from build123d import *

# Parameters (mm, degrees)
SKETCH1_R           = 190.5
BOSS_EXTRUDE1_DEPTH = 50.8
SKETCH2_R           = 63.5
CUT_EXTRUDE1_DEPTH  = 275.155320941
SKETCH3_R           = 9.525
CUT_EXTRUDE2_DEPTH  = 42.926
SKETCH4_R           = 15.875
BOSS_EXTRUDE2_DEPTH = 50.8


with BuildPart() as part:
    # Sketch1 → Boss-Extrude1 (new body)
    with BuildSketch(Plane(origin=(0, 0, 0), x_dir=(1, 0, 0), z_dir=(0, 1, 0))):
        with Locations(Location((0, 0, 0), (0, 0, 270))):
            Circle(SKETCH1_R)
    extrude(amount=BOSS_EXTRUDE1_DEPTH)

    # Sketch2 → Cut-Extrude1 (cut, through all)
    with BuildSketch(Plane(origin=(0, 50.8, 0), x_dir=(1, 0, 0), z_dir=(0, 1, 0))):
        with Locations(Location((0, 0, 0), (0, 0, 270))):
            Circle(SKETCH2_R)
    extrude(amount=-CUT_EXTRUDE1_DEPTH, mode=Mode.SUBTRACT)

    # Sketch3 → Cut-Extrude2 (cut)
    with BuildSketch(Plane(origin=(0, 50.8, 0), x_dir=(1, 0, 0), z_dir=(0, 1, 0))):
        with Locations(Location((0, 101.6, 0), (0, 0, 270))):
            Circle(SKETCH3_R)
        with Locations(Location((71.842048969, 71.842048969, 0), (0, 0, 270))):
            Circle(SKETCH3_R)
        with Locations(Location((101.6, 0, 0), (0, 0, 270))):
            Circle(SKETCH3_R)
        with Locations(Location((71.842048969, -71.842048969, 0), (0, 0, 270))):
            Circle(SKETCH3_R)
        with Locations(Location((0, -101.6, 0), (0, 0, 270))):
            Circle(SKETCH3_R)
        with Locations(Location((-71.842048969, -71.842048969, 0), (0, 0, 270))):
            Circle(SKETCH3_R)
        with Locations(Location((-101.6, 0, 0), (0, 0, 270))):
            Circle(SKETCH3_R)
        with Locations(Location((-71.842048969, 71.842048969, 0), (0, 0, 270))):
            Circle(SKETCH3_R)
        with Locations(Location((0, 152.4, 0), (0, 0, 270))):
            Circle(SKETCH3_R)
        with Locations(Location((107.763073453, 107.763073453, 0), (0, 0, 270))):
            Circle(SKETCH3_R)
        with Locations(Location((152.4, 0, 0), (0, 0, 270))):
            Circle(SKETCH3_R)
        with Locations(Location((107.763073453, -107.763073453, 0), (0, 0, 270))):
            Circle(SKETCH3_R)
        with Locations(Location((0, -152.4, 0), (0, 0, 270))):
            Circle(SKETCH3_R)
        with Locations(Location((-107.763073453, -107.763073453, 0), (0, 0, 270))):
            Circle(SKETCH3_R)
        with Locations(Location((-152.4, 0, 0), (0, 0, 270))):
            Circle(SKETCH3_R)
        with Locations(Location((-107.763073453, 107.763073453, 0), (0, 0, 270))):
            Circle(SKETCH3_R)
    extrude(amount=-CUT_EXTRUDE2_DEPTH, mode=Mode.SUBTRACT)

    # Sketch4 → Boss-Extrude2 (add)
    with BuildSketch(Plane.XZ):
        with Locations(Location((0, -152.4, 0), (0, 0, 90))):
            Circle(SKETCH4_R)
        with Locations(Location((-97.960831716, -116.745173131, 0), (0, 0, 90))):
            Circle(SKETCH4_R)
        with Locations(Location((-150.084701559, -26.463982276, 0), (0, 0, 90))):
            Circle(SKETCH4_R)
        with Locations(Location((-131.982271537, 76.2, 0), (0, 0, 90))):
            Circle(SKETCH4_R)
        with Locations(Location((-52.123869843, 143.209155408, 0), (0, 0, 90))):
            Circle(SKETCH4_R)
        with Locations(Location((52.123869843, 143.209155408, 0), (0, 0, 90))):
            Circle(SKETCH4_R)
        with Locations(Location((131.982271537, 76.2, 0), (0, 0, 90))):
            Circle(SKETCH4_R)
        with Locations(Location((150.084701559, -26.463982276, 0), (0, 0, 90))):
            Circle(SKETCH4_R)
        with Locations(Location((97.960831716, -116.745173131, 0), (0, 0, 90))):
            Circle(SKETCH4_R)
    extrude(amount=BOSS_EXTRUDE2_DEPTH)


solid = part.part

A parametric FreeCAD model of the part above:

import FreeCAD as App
import Part
import Sketcher
from FreeCAD import Vector
Q = App.Units.Quantity

doc = App.newDocument("Part")
body = doc.addObject("PartDesign::Body", "Body")

sketch1 = body.newObject("Sketcher::SketchObject", "Sketch")
sketch1.AttachmentSupport = (doc.getObject("XZ_Plane"), [""])
sketch1.MapMode = "FlatFace"
sketch1.addGeometry(Part.Circle(Vector(0, 0, 0), Vector(0, 0, 1), 190), False)
sketch1.addConstraint([
    Sketcher.Constraint("Coincident", 0, 3, -1, 1),
    Sketcher.Constraint("Diameter", 0, Q("15 in")),
])
pad1 = body.newObject("PartDesign::Pad", "Pad")
pad1.Profile = sketch1
pad1.Length = Q("2 in")
pad1.Reversed = True

sketch2 = body.newObject("Sketcher::SketchObject", "Sketch001")
sketch2.AttachmentSupport = (doc.getObject("XZ_Plane"), [""])
sketch2.MapMode = "FlatFace"
sketch2.AttachmentOffset = App.Placement(Vector(0, 0, -2 * 25.4), App.Rotation())
sketch2.addGeometry(Part.Circle(Vector(0, 0, 0), Vector(0, 0, 1), 64), False)
sketch2.addConstraint([
    Sketcher.Constraint("Coincident", 0, 3, -1, 1),
    Sketcher.Constraint("Diameter", 0, Q("5 in")),
])
pocket1 = body.newObject("PartDesign::Pocket", "Pocket")
pocket1.Profile = sketch2
pocket1.Type = "ThroughAll"
pocket1.Reversed = True

sketch3 = body.newObject("Sketcher::SketchObject", "Sketch002")
sketch3.AttachmentSupport = (doc.getObject("XZ_Plane"), [""])
sketch3.MapMode = "FlatFace"
sketch3.AttachmentOffset = App.Placement(Vector(0, 0, -2 * 25.4), App.Rotation())
sketch3.addGeometry([
    Part.Circle(Vector(0, -102, 0), Vector(0, 0, 1), 10),
    Part.Circle(Vector(72, -72, 0), Vector(0, 0, 1), 10),
    Part.Circle(Vector(102, 0, 0), Vector(0, 0, 1), 10),
    Part.Circle(Vector(72, 72, 0), Vector(0, 0, 1), 10),
    Part.Circle(Vector(0, 102, 0), Vector(0, 0, 1), 10),
    Part.Circle(Vector(-72, 72, 0), Vector(0, 0, 1), 10),
    Part.Circle(Vector(-102, 0, 0), Vector(0, 0, 1), 10),
    Part.Circle(Vector(-72, -72, 0), Vector(0, 0, 1), 10),
    Part.Circle(Vector(0, -152, 0), Vector(0, 0, 1), 10),
    Part.Circle(Vector(108, -108, 0), Vector(0, 0, 1), 10),
    Part.Circle(Vector(152, 0, 0), Vector(0, 0, 1), 10),
    Part.Circle(Vector(108, 108, 0), Vector(0, 0, 1), 10),
    Part.Circle(Vector(0, 152, 0), Vector(0, 0, 1), 10),
    Part.Circle(Vector(-108, 108, 0), Vector(0, 0, 1), 10),
    Part.Circle(Vector(-152, 0, 0), Vector(0, 0, 1), 10),
    Part.Circle(Vector(-108, -108, 0), Vector(0, 0, 1), 10),
], False)
sketch3.addConstraint([
    Sketcher.Constraint("Equal", 0, 1),
    Sketcher.Constraint("Equal", 1, 2),
    Sketcher.Constraint("Equal", 2, 3),
    Sketcher.Constraint("Equal", 3, 4),
    Sketcher.Constraint("Equal", 4, 5),
    Sketcher.Constraint("Equal", 5, 6),
    Sketcher.Constraint("Equal", 6, 7),
    Sketcher.Constraint("Equal", 7, 8),
    Sketcher.Constraint("Equal", 8, 9),
    Sketcher.Constraint("Equal", 9, 10),
    Sketcher.Constraint("Equal", 10, 11),
    Sketcher.Constraint("Equal", 11, 12),
    Sketcher.Constraint("Equal", 12, 13),
    Sketcher.Constraint("Equal", 13, 14),
    Sketcher.Constraint("Equal", 14, 15),
    Sketcher.Constraint("Symmetric", 0, 3, 4, 3, -1, 1),
    Sketcher.Constraint("Symmetric", 1, 3, 5, 3, -1, 1),
    Sketcher.Constraint("Symmetric", 2, 3, 6, 3, -1, 1),
    Sketcher.Constraint("Symmetric", 3, 3, 7, 3, -1, 1),
    Sketcher.Constraint("Symmetric", 8, 3, 12, 3, -1, 1),
    Sketcher.Constraint("Symmetric", 9, 3, 13, 3, -1, 1),
    Sketcher.Constraint("Symmetric", 10, 3, 14, 3, -1, 1),
    Sketcher.Constraint("Symmetric", 11, 3, 15, 3, -1, 1),
    Sketcher.Constraint("Symmetric", 3, 3, 5, 3, -2),
    Sketcher.Constraint("Symmetric", 11, 3, 13, 3, -2),
    Sketcher.Constraint("PointOnObject", 0, 3, -2),
    Sketcher.Constraint("PointOnObject", 2, 3, -1),
    Sketcher.Constraint("PointOnObject", 8, 3, -2),
    Sketcher.Constraint("PointOnObject", 10, 3, -1),
    Sketcher.Constraint("Diameter", 0, Q("0.75 in")),
    Sketcher.Constraint("DistanceY", 0, 3, -1, 1, Q("4 in")),
    Sketcher.Constraint("DistanceX", -1, 1, 2, 3, Q("4 in")),
    Sketcher.Constraint("DistanceY", 8, 3, -1, 1, Q("6 in")),
    Sketcher.Constraint("DistanceX", -1, 1, 10, 3, Q("6 in")),
    Sketcher.Constraint("DistanceX", -1, 1, 1, 3, 71.842049),
    Sketcher.Constraint("DistanceY", 1, 3, -1, 1, 71.842049),
    Sketcher.Constraint("DistanceX", -1, 1, 9, 3, 107.763073),
    Sketcher.Constraint("DistanceY", 9, 3, -1, 1, 107.763073),
])
pocket2 = body.newObject("PartDesign::Pocket", "Pocket001")
pocket2.Profile = sketch3
pocket2.Length = Q("1.69 in")
pocket2.Reversed = True

sketch4 = body.newObject("Sketcher::SketchObject", "Sketch003")
sketch4.AttachmentSupport = (doc.getObject("XZ_Plane"), [""])
sketch4.MapMode = "FlatFace"
sketch4.addGeometry([
    Part.Circle(Vector(0, -152, 0), Vector(0, 0, 1), 16),
    Part.Circle(Vector(-98, -117, 0), Vector(0, 0, 1), 16),
    Part.Circle(Vector(-150, -26, 0), Vector(0, 0, 1), 16),
    Part.Circle(Vector(-132, 76, 0), Vector(0, 0, 1), 16),
    Part.Circle(Vector(-52, 143, 0), Vector(0, 0, 1), 16),
    Part.Circle(Vector(52, 143, 0), Vector(0, 0, 1), 16),
    Part.Circle(Vector(132, 76, 0), Vector(0, 0, 1), 16),
    Part.Circle(Vector(150, -26, 0), Vector(0, 0, 1), 16),
    Part.Circle(Vector(98, -117, 0), Vector(0, 0, 1), 16),
], False)
sketch4.addConstraint([
    Sketcher.Constraint("Equal", 0, 1),
    Sketcher.Constraint("Equal", 1, 2),
    Sketcher.Constraint("Equal", 2, 3),
    Sketcher.Constraint("Equal", 3, 4),
    Sketcher.Constraint("Equal", 4, 5),
    Sketcher.Constraint("Equal", 5, 6),
    Sketcher.Constraint("Equal", 6, 7),
    Sketcher.Constraint("Equal", 7, 8),
    Sketcher.Constraint("Symmetric", 4, 3, 5, 3, -2),
    Sketcher.Constraint("Symmetric", 3, 3, 6, 3, -2),
    Sketcher.Constraint("Symmetric", 2, 3, 7, 3, -2),
    Sketcher.Constraint("Symmetric", 1, 3, 8, 3, -2),
    Sketcher.Constraint("PointOnObject", 0, 3, -2),
    Sketcher.Constraint("Diameter", 0, Q("1.25 in")),
    Sketcher.Constraint("DistanceY", 0, 3, -1, 1, Q("6 in")),
    Sketcher.Constraint("DistanceY", -1, 1, 3, 3, Q("3 in")),
    Sketcher.Constraint("DistanceX", 2, 3, -1, 1, 150.084702),
    Sketcher.Constraint("DistanceX", 3, 3, 4, 3, 79.858402),
    Sketcher.Constraint("DistanceX", 1, 3, 5, 3, 150.084702),
    Sketcher.Constraint("DistanceX", 1, 3, -1, 1, 97.960832),
    Sketcher.Constraint("DistanceY", 1, 3, 2, 3, 90.281191),
    Sketcher.Constraint("DistanceY", 1, 3, 4, 3, 259.954329),
    Sketcher.Constraint("DistanceY", 1, 3, -1, 1, 116.745173),
])
pad2 = body.newObject("PartDesign::Pad", "Pad001")
pad2.Profile = sketch4
pad2.Length = Q("2 in")

doc.recompute()
